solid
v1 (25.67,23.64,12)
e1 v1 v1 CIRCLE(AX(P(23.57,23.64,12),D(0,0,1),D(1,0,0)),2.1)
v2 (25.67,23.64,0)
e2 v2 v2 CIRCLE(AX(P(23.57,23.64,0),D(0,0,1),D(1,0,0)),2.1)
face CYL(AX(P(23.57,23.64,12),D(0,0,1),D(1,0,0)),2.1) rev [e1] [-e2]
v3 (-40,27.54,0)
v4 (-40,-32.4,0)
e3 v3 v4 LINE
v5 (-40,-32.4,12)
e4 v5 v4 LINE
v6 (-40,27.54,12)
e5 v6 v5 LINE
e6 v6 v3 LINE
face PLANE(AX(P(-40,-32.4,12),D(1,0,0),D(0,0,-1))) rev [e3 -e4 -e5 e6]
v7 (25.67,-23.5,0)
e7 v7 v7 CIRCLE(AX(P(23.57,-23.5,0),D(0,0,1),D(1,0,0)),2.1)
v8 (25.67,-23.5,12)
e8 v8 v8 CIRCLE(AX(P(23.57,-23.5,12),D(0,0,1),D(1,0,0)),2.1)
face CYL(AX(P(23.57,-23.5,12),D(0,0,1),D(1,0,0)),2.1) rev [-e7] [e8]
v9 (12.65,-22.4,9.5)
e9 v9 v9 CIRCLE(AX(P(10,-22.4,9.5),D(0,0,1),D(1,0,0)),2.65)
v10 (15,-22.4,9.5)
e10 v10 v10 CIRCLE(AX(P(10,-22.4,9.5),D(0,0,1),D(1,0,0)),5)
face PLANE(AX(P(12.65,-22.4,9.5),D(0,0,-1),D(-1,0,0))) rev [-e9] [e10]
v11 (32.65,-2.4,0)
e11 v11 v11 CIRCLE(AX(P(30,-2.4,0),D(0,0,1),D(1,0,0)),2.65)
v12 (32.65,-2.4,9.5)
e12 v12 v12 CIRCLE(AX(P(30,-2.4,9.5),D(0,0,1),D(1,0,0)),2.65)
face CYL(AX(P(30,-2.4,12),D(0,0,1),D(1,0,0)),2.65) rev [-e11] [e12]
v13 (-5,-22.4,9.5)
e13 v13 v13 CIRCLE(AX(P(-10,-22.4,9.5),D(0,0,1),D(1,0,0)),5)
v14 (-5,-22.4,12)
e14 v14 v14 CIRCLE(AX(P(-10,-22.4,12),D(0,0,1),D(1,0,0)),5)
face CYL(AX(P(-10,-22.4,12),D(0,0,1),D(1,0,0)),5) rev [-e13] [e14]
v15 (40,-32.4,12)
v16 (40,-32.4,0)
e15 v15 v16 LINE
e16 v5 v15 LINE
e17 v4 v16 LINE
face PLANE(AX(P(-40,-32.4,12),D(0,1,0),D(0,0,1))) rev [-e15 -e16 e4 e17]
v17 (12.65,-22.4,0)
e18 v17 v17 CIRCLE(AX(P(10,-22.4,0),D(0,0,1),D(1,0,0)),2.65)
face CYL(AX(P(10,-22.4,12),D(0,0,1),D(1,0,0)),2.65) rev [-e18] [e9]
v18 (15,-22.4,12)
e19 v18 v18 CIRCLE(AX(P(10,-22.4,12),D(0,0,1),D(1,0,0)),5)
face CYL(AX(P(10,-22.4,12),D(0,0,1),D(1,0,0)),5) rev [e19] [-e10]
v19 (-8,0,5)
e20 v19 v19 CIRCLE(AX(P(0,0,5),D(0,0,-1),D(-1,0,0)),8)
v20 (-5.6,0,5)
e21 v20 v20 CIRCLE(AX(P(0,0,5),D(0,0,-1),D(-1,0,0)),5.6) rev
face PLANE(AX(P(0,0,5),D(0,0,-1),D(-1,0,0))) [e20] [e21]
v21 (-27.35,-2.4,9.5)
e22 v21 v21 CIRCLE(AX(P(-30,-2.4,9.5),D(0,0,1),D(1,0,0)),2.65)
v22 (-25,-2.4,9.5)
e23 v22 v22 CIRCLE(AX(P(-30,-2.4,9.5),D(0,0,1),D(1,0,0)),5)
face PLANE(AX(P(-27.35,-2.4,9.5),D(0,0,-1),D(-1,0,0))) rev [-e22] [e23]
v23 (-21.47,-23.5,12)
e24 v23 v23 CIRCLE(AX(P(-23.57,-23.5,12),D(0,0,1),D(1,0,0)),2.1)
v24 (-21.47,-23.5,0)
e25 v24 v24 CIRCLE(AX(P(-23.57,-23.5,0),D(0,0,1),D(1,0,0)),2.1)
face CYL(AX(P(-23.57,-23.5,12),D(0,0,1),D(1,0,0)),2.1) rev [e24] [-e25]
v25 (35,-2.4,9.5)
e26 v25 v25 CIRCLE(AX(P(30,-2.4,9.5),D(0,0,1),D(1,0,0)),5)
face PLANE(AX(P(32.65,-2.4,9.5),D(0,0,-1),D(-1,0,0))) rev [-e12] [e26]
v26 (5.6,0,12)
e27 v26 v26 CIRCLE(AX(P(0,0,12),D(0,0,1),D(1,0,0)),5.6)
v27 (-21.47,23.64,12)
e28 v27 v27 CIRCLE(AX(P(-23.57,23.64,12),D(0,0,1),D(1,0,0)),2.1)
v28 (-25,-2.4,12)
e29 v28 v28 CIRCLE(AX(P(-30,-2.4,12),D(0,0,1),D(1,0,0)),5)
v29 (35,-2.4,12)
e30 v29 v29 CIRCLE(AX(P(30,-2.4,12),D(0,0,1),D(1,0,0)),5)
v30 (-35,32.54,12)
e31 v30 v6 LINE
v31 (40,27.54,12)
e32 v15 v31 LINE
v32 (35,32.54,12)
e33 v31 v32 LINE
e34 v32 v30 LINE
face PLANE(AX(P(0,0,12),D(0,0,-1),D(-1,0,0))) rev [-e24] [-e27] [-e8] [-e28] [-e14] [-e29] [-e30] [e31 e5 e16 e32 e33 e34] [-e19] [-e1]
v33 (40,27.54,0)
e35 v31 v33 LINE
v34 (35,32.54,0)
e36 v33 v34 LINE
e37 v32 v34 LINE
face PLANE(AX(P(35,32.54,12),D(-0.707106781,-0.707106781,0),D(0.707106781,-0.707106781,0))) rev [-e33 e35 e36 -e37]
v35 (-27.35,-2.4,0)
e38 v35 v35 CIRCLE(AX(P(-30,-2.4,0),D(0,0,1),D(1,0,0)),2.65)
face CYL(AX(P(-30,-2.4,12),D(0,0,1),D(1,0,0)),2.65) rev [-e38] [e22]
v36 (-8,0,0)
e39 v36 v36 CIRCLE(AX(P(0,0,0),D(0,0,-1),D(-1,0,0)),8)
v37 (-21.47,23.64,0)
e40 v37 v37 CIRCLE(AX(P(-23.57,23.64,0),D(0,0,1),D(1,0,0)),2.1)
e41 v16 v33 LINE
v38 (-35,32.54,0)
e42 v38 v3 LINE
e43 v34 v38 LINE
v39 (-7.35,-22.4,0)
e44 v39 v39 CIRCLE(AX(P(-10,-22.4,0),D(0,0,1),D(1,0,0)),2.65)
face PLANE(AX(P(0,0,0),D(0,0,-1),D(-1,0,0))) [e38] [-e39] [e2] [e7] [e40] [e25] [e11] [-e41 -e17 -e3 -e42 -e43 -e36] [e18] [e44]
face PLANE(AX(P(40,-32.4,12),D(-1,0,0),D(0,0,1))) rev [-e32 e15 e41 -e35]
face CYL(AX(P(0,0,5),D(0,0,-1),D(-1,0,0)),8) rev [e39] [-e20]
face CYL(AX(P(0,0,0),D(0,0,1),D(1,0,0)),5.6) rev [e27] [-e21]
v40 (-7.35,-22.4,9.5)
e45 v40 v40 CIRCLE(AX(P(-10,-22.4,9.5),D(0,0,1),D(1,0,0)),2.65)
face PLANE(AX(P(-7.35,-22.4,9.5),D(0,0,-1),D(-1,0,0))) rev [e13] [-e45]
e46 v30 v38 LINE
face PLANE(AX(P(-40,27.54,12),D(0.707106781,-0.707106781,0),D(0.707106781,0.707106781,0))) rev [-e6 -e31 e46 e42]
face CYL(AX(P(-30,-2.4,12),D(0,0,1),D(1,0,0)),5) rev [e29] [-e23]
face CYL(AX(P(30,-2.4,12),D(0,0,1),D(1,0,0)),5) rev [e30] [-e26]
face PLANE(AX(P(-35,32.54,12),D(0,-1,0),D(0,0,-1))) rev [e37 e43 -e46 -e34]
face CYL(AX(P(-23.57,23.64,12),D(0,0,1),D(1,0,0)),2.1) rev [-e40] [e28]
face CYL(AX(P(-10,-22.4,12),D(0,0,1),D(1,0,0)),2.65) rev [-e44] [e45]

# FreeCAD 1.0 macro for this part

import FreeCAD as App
import Part
import Sketcher

doc = App.newDocument("Part")
params = doc.addObject("Spreadsheet::Sheet", "Params")
for row, (alias, value) in enumerate([
    ("sketch1_width", "80 mm"),
    ("sketch1_width2", "70 mm"),
    ("sketch1_height", "59.94 mm"),
    ("pad1_length", "12 mm"),
    ("sketch2_diameter", "4.2 mm"),
    ("hole_diameter", "4.2 mm"),
    ("sketch3_diameter", "5.3 mm"),
    ("hole2_diameter", "5.3 mm"),
    ("hole2_cbore_diameter", "10 mm"),
    ("hole2_cbore_depth", "2.5 mm"),
    ("sketch4_diameter", "11.2 mm"),
    ("pocket1_length", "12 mm"),
    ("sketch5_diameter", "16 mm"),
    ("pocket2_length", "5 mm"),
], start=1):
    params.set(f"A{row}", alias)
    params.set(f"B{row}", "=" + value)
    params.setAlias(f"B{row}", alias)

body = doc.addObject("PartDesign::Body", "Body")

sketch1 = body.newObject("Sketcher::SketchObject", "Sketch")
sketch1.AttachmentSupport = (doc.getObject("XY_Plane"), [""])
sketch1.MapMode = "FlatFace"
sketch1.addGeometry(Part.LineSegment(App.Vector(-40, -32, 0), App.Vector(40, -32, 0)), False)
sketch1.addGeometry(Part.LineSegment(App.Vector(40, -32, 0), App.Vector(40, 28, 0)), False)
sketch1.addGeometry(Part.LineSegment(App.Vector(40, 28, 0), App.Vector(35, 33, 0)), False)
sketch1.addGeometry(Part.LineSegment(App.Vector(35, 33, 0), App.Vector(-35, 33, 0)), False)
sketch1.addGeometry(Part.LineSegment(App.Vector(-35, 33, 0), App.Vector(-40, 28, 0)), False)
sketch1.addGeometry(Part.LineSegment(App.Vector(-40, 28, 0), App.Vector(-40, -32, 0)), False)
sketch1.addConstraint(Sketcher.Constraint("Coincident", 0, 2, 1, 1))
sketch1.addConstraint(Sketcher.Constraint("Coincident", 1, 2, 2, 1))
sketch1.addConstraint(Sketcher.Constraint("Coincident", 2, 2, 3, 1))
sketch1.addConstraint(Sketcher.Constraint("Coincident", 3, 2, 4, 1))
sketch1.addConstraint(Sketcher.Constraint("Coincident", 4, 2, 5, 1))
sketch1.addConstraint(Sketcher.Constraint("Coincident", 5, 2, 0, 1))
sketch1.addConstraint(Sketcher.Constraint("Horizontal", 0))
sketch1.addConstraint(Sketcher.Constraint("Vertical", 1))
sketch1.addConstraint(Sketcher.Constraint("Horizontal", 3))
sketch1.addConstraint(Sketcher.Constraint("Vertical", 5))
sketch1.addConstraint(Sketcher.Constraint("Symmetric", 1, 2, 4, 2, -2))
sketch1.addConstraint(Sketcher.Constraint("Perpendicular", 2, 4))
sketch1.addConstraint(Sketcher.Constraint("Equal", 2, 4))
sketch1.addConstraint(Sketcher.Constraint("DistanceX", 0, 1, 0, 2, 80.0))
sketch1.addConstraint(Sketcher.Constraint("DistanceX", 3, 2, 3, 1, 70.0))
sketch1.addConstraint(Sketcher.Constraint("DistanceY", 1, 1, 1, 2, 59.94))
sketch1.addConstraint(Sketcher.Constraint("DistanceY", 0, 2, -1, 1, 32.4))
sketch1.setExpression("Constraints[13]", "Params.sketch1_width")
sketch1.setExpression("Constraints[14]", "Params.sketch1_width2")
sketch1.setExpression("Constraints[15]", "Params.sketch1_height")
pad1 = body.newObject("PartDesign::Pad", "Pad")
pad1.Profile = sketch1
pad1.setExpression("Length", "Params.pad1_length")

sketch2 = body.newObject("Sketcher::SketchObject", "Sketch001")
sketch2.AttachmentSupport = (doc.getObject("XY_Plane"), [""])
sketch2.MapMode = "FlatFace"
sketch2.AttachmentOffset = App.Placement(App.Vector(0, 0, 12), App.Rotation())
sketch2.addGeometry(Part.Circle(App.Vector(-23.6, -23.5, 0), App.Vector(0, 0, 1), 2.1), False)
sketch2.addGeometry(Part.Circle(App.Vector(-23.6, 23.6, 0), App.Vector(0, 0, 1), 2.1), False)
sketch2.addGeometry(Part.Circle(App.Vector(23.6, 23.6, 0), App.Vector(0, 0, 1), 2.1), False)
sketch2.addGeometry(Part.Circle(App.Vector(23.6, -23.5, 0), App.Vector(0, 0, 1), 2.1), False)
sketch2.addConstraint(Sketcher.Constraint("Equal", 0, 1))
sketch2.addConstraint(Sketcher.Constraint("Equal", 1, 2))
sketch2.addConstraint(Sketcher.Constraint("Equal", 2, 3))
sketch2.addConstraint(Sketcher.Constraint("Symmetric", 1, 3, 2, 3, -2))
sketch2.addConstraint(Sketcher.Constraint("Symmetric", 0, 3, 3, 3, -2))
sketch2.addConstraint(Sketcher.Constraint("Vertical", 0, 3, 1, 3))
sketch2.addConstraint(Sketcher.Constraint("Diameter", 0, 4.2))
sketch2.addConstraint(Sketcher.Constraint("DistanceY", 0, 3, -1, 1, 23.5))
sketch2.addConstraint(Sketcher.Constraint("DistanceX", 0, 3, -1, 1, 23.57))
sketch2.addConstraint(Sketcher.Constraint("DistanceY", -1, 1, 1, 3, 23.64))
sketch2.setExpression("Constraints[6]", "Params.sketch2_diameter")
doc.recompute()
hole = body.newObject("PartDesign::Hole", "Hole")
hole.Profile = sketch2
hole.ThreadType = "None"
hole.setExpression("Diameter", "Params.hole_diameter")
hole.DepthType = "ThroughAll"

sketch3 = body.newObject("Sketcher::SketchObject", "Sketch002")
sketch3.AttachmentSupport = (doc.getObject("XY_Plane"), [""])
sketch3.MapMode = "FlatFace"
sketch3.AttachmentOffset = App.Placement(App.Vector(0, 0, 12), App.Rotation())
sketch3.addGeometry(Part.Circle(App.Vector(-30, -2.4, 0), App.Vector(0, 0, 1), 2.6), False)
sketch3.addGeometry(Part.Circle(App.Vector(-10, -22.4, 0), App.Vector(0, 0, 1), 2.6), False)
sketch3.addGeometry(Part.Circle(App.Vector(10, -22.4, 0), App.Vector(0, 0, 1), 2.6), False)
sketch3.addGeometry(Part.Circle(App.Vector(30, -2.4, 0), App.Vector(0, 0, 1), 2.6), False)
sketch3.addConstraint(Sketcher.Constraint("Equal", 0, 1))
sketch3.addConstraint(Sketcher.Constraint("Equal", 1, 2))
sketch3.addConstraint(Sketcher.Constraint("Equal", 2, 3))
sketch3.addConstraint(Sketcher.Constraint("Symmetric", 1, 3, 2, 3, -2))
sketch3.addConstraint(Sketcher.Constraint("Symmetric", 0, 3, 3, 3, -2))
sketch3.addConstraint(Sketcher.Constraint("Diameter", 0, 5.3))
sketch3.addConstraint(Sketcher.Constraint("DistanceX", 0, 3, -1, 1, 30.0))
sketch3.addConstraint(Sketcher.Constraint("DistanceX", 1, 3, -1, 1, 10.0))
sketch3.addConstraint(Sketcher.Constraint("DistanceY", 1, 3, 0, 3, 20.0))
sketch3.addConstraint(Sketcher.Constraint("DistanceY", 0, 3, -1, 1, 2.4))
sketch3.setExpression("Constraints[5]", "Params.sketch3_diameter")
doc.recompute()
hole2 = body.newObject("PartDesign::Hole", "Hole001")
hole2.Profile = sketch3
hole2.ThreadType = "None"
hole2.setExpression("Diameter", "Params.hole2_diameter")
hole2.DepthType = "ThroughAll"
hole2.HoleCutType = "Counterbore"
hole2.setExpression("HoleCutDiameter", "Params.hole2_cbore_diameter")
hole2.setExpression("HoleCutDepth", "Params.hole2_cbore_depth")

sketch4 = body.newObject("Sketcher::SketchObject", "Sketch003")
sketch4.AttachmentSupport = (doc.getObject("XY_Plane"), [""])
sketch4.MapMode = "FlatFace"
sketch4.AttachmentOffset = App.Placement(App.Vector(0, 0, 12), App.Rotation())
sketch4.addGeometry(Part.Circle(App.Vector(0, 0, 0), App.Vector(0, 0, 1), 6), False)
sketch4.addConstraint(Sketcher.Constraint("Coincident", 0, 3, -1, 1))
sketch4.addConstraint(Sketcher.Constraint("Diameter", 0, 11.2))
sketch4.setExpression("Constraints[1]", "Params.sketch4_diameter")
pocket1 = body.newObject("PartDesign::Pocket", "Pocket")
pocket1.Profile = sketch4
pocket1.setExpression("Length", "Params.pocket1_length")

sketch5 = body.newObject("Sketcher::SketchObject", "Sketch004")
sketch5.AttachmentSupport = (doc.getObject("XY_Plane"), [""])
sketch5.MapMode = "FlatFace"
sketch5.addGeometry(Part.Circle(App.Vector(0, 0, 0), App.Vector(0, 0, 1), 8), False)
sketch5.addConstraint(Sketcher.Constraint("Coincident", 0, 3, -1, 1))
sketch5.addConstraint(Sketcher.Constraint("Diameter", 0, 16.0))
sketch5.setExpression("Constraints[1]", "Params.sketch5_diameter")
pocket2 = body.newObject("PartDesign::Pocket", "Pocket001")
pocket2.Profile = sketch5
pocket2.setExpression("Length", "Params.pocket2_length")
pocket2.Reversed = True

doc.recompute()
